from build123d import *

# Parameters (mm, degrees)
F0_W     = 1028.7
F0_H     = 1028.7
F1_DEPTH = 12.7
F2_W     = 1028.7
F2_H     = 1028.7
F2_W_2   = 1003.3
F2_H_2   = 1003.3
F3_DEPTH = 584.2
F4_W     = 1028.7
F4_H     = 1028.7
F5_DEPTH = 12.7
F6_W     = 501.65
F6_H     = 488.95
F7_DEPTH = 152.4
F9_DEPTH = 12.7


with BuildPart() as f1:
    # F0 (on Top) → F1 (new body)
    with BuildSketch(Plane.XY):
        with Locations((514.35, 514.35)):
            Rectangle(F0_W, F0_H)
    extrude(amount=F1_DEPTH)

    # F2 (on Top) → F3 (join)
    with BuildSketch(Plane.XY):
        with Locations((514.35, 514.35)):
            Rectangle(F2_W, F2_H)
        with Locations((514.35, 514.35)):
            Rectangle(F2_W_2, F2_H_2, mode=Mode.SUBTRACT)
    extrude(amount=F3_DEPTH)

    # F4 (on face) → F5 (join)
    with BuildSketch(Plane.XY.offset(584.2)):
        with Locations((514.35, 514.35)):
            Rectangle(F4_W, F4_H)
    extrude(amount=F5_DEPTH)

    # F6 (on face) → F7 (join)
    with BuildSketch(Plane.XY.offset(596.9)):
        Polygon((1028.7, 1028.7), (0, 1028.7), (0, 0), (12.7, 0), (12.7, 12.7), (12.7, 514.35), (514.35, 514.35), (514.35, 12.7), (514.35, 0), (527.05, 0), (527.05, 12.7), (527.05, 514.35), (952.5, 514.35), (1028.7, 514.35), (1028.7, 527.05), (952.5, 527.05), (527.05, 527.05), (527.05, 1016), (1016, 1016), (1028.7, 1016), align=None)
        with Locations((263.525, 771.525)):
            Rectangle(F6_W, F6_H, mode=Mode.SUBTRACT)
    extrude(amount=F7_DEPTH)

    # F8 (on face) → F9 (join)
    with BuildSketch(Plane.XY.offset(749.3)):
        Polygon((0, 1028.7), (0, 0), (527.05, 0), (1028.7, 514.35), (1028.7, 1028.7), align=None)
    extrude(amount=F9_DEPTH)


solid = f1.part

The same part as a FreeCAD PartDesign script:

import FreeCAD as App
import Part
import Sketcher

V = App.Vector
Q = App.Units.Quantity


def add_polygon(sketch, points):
    """Adds a closed chain of lines whose ends are joined by coincident constraints."""
    first, n = sketch.GeometryCount, len(points)
    for a, b in zip(points, points[1:] + points[:1]):
        sketch.addGeometry(Part.LineSegment(App.Vector(*a, 0), App.Vector(*b, 0)), False)
    for i in range(n):
        sketch.addConstraint(Sketcher.Constraint("Coincident", first + i, 2, first + (i + 1) % n, 1))

doc = App.newDocument("Part")
body = doc.addObject("PartDesign::Body", "Body")

sketch1 = body.newObject("Sketcher::SketchObject", "Sketch")
sketch1.AttachmentSupport = (doc.getObject("XY_Plane"), [""])
sketch1.MapMode = "FlatFace"
add_polygon(sketch1, [(0, 1029), (0, 0), (1029, 0), (1029, 1029)])
sketch1.addConstraint([
    Sketcher.Constraint("Vertical", 0),
    Sketcher.Constraint("Horizontal", 1),
    Sketcher.Constraint("Vertical", 2),
    Sketcher.Constraint("Horizontal", 3),
    Sketcher.Constraint("Coincident", 0, 2, -1, 1),
    Sketcher.Constraint("Equal", 3, 0),
    Sketcher.Constraint("DistanceX", 1, 1, 1, 2, Q("40.5 in")),
])
pad1 = body.newObject("PartDesign::Pad", "Pad")
pad1.Profile = sketch1
pad1.Length = Q("0.5 in")

sketch2 = body.newObject("Sketcher::SketchObject", "Sketch001")
sketch2.AttachmentSupport = (doc.getObject("XY_Plane"), [""])
sketch2.MapMode = "FlatFace"
add_polygon(sketch2, [(0, 1029), (0, 0), (1029, 0), (1029, 1029)])
add_polygon(sketch2, [(1016, 13), (13, 13), (13, 1016), (1016, 1016)])
sketch2.addConstraint([
    Sketcher.Constraint("Vertical", 0),
    Sketcher.Constraint("Horizontal", 1),
    Sketcher.Constraint("Vertical", 2),
    Sketcher.Constraint("Horizontal", 3),
    Sketcher.Constraint("Horizontal", 4),
    Sketcher.Constraint("Vertical", 5),
    Sketcher.Constraint("Horizontal", 6),
    Sketcher.Constraint("Vertical", 7),
    Sketcher.Constraint("Coincident", 0, 2, -1, 1),
    Sketcher.Constraint("Equal", 3, 0),
    Sketcher.Constraint("Equal", 6, 5),
    Sketcher.Constraint("DistanceX", 1, 1, 1, 2, Q("40.5 in")),
    Sketcher.Constraint("DistanceX", 4, 2, 4, 1, Q("39.5 in")),
    Sketcher.Constraint("DistanceY", -1, 1, 5, 2, Q("40 in")),
    Sketcher.Constraint("DistanceX", -1, 1, 6, 2, Q("40 in")),
])
pad2 = body.newObject("PartDesign::Pad", "Pad001")
pad2.Profile = sketch2
pad2.Length = Q("23 in")

sketch3 = body.newObject("Sketcher::SketchObject", "Sketch002")
sketch3.AttachmentSupport = (doc.getObject("XY_Plane"), [""])
sketch3.MapMode = "FlatFace"
sketch3.AttachmentOffset = App.Placement(V(0, 0, 23 * 25.4), App.Rotation())
add_polygon(sketch3, [(0, 1029), (0, 0), (1029, 0), (1029, 1029)])
sketch3.addConstraint([
    Sketcher.Constraint("Vertical", 0),
    Sketcher.Constraint("Horizontal", 1),
    Sketcher.Constraint("Vertical", 2),
    Sketcher.Constraint("Horizontal", 3),
    Sketcher.Constraint("Coincident", 0, 2, -1, 1),
    Sketcher.Constraint("Equal", 3, 0),
    Sketcher.Constraint("DistanceX", 1, 1, 1, 2, Q("40.5 in")),
])
pad3 = body.newObject("PartDesign::Pad", "Pad002")
pad3.Profile = sketch3
pad3.Length = Q("0.5 in")

sketch4 = body.newObject("Sketcher::SketchObject", "Sketch003")
sketch4.AttachmentSupport = (doc.getObject("XY_Plane"), [""])
sketch4.MapMode = "FlatFace"
sketch4.AttachmentOffset = App.Placement(V(0, 0, 23.5 * 25.4), App.Rotation())
add_polygon(sketch4, [(1029, 1029), (0, 1029), (0, 0), (13, 0), (13, 514), (514, 514), (514, 0), (527, 0), (527, 514), (1029, 514), (1029, 527), (527, 527), (527, 1016), (1029, 1016)])
add_polygon(sketch4, [(514, 527), (13, 527), (13, 1016), (514, 1016)])
sketch4.addConstraint([
    Sketcher.Constraint("Horizontal", 0),
    Sketcher.Constraint("Vertical", 1),
    Sketcher.Constraint("Horizontal", 2),
    Sketcher.Constraint("Vertical", 3),
    Sketcher.Constraint("Horizontal", 4),
    Sketcher.Constraint("Vertical", 5),
    Sketcher.Constraint("Horizontal", 6),
    Sketcher.Constraint("Vertical", 7),
    Sketcher.Constraint("Horizontal", 8),
    Sketcher.Constraint("Vertical", 9),
    Sketcher.Constraint("Horizontal", 10),
    Sketcher.Constraint("Vertical", 11),
    Sketcher.Constraint("Horizontal", 12),
    Sketcher.Constraint("Vertical", 13),
    Sketcher.Constraint("Horizontal", 14),
    Sketcher.Constraint("Vertical", 15),
    Sketcher.Constraint("Horizontal", 16),
    Sketcher.Constraint("Vertical", 17),
    Sketcher.Constraint("Coincident", 1, 2, -1, 1),
    Sketcher.Constraint("PointOnObject", 5, 2, -1),
    Sketcher.Constraint("Horizontal", 4, 2, 7, 2),
    Sketcher.Constraint("Horizontal", 10, 2, 14, 2),
    Sketcher.Constraint("Horizontal", 12, 2, 15, 2),
    Sketcher.Constraint("Vertical", 7, 2, 10, 2),
    Sketcher.Constraint("Vertical", 9, 2, 12, 2),
    Sketcher.Constraint("Vertical", 3, 2, 14, 2),
    Sketcher.Constraint("Vertical", 5, 2, 16, 2),
    Sketcher.Constraint("Equal", 2, 6),
    Sketcher.Constraint("Equal", 4, 8),
    Sketcher.Constraint("Equal", 0, 1),
    Sketcher.Constraint("Equal", 6, 9),
    Sketcher.Constraint("Equal", 9, 13),
    Sketcher.Constraint("DistanceX", 0, 2, 0, 1, Q("40.5 in")),
    Sketcher.Constraint("DistanceX", 2, 1, 2, 2, Q("0.5 in")),
    Sketcher.Constraint("DistanceY", 3, 1, 3, 2, Q("20.25 in")),
])
pad4 = body.newObject("PartDesign::Pad", "Pad003")
pad4.Profile = sketch4
pad4.Length = Q("6 in")

sketch5 = body.newObject("Sketcher::SketchObject", "Sketch004")
sketch5.AttachmentSupport = (doc.getObject("XY_Plane"), [""])
sketch5.MapMode = "FlatFace"
sketch5.AttachmentOffset = App.Placement(V(0, 0, 29.5 * 25.4), App.Rotation())
add_polygon(sketch5, [(0, 1029), (0, 0), (527, 0), (1029, 514), (1029, 1029)])
sketch5.addConstraint([
    Sketcher.Constraint("Vertical", 0),
    Sketcher.Constraint("Horizontal", 1),
    Sketcher.Constraint("Vertical", 3),
    Sketcher.Constraint("Horizontal", 4),
    Sketcher.Constraint("Coincident", 0, 2, -1, 1),
    Sketcher.Constraint("Equal", 4, 0),
    Sketcher.Constraint("DistanceX", 4, 2, 4, 1, Q("40.5 in")),
    Sketcher.Constraint("DistanceX", 1, 1, 1, 2, Q("20.75 in")),
    Sketcher.Constraint("DistanceY", 3, 1, 3, 2, Q("20.25 in")),
])
pad5 = body.newObject("PartDesign::Pad", "Pad004")
pad5.Profile = sketch5
pad5.Length = Q("0.5 in")

doc.recompute()
